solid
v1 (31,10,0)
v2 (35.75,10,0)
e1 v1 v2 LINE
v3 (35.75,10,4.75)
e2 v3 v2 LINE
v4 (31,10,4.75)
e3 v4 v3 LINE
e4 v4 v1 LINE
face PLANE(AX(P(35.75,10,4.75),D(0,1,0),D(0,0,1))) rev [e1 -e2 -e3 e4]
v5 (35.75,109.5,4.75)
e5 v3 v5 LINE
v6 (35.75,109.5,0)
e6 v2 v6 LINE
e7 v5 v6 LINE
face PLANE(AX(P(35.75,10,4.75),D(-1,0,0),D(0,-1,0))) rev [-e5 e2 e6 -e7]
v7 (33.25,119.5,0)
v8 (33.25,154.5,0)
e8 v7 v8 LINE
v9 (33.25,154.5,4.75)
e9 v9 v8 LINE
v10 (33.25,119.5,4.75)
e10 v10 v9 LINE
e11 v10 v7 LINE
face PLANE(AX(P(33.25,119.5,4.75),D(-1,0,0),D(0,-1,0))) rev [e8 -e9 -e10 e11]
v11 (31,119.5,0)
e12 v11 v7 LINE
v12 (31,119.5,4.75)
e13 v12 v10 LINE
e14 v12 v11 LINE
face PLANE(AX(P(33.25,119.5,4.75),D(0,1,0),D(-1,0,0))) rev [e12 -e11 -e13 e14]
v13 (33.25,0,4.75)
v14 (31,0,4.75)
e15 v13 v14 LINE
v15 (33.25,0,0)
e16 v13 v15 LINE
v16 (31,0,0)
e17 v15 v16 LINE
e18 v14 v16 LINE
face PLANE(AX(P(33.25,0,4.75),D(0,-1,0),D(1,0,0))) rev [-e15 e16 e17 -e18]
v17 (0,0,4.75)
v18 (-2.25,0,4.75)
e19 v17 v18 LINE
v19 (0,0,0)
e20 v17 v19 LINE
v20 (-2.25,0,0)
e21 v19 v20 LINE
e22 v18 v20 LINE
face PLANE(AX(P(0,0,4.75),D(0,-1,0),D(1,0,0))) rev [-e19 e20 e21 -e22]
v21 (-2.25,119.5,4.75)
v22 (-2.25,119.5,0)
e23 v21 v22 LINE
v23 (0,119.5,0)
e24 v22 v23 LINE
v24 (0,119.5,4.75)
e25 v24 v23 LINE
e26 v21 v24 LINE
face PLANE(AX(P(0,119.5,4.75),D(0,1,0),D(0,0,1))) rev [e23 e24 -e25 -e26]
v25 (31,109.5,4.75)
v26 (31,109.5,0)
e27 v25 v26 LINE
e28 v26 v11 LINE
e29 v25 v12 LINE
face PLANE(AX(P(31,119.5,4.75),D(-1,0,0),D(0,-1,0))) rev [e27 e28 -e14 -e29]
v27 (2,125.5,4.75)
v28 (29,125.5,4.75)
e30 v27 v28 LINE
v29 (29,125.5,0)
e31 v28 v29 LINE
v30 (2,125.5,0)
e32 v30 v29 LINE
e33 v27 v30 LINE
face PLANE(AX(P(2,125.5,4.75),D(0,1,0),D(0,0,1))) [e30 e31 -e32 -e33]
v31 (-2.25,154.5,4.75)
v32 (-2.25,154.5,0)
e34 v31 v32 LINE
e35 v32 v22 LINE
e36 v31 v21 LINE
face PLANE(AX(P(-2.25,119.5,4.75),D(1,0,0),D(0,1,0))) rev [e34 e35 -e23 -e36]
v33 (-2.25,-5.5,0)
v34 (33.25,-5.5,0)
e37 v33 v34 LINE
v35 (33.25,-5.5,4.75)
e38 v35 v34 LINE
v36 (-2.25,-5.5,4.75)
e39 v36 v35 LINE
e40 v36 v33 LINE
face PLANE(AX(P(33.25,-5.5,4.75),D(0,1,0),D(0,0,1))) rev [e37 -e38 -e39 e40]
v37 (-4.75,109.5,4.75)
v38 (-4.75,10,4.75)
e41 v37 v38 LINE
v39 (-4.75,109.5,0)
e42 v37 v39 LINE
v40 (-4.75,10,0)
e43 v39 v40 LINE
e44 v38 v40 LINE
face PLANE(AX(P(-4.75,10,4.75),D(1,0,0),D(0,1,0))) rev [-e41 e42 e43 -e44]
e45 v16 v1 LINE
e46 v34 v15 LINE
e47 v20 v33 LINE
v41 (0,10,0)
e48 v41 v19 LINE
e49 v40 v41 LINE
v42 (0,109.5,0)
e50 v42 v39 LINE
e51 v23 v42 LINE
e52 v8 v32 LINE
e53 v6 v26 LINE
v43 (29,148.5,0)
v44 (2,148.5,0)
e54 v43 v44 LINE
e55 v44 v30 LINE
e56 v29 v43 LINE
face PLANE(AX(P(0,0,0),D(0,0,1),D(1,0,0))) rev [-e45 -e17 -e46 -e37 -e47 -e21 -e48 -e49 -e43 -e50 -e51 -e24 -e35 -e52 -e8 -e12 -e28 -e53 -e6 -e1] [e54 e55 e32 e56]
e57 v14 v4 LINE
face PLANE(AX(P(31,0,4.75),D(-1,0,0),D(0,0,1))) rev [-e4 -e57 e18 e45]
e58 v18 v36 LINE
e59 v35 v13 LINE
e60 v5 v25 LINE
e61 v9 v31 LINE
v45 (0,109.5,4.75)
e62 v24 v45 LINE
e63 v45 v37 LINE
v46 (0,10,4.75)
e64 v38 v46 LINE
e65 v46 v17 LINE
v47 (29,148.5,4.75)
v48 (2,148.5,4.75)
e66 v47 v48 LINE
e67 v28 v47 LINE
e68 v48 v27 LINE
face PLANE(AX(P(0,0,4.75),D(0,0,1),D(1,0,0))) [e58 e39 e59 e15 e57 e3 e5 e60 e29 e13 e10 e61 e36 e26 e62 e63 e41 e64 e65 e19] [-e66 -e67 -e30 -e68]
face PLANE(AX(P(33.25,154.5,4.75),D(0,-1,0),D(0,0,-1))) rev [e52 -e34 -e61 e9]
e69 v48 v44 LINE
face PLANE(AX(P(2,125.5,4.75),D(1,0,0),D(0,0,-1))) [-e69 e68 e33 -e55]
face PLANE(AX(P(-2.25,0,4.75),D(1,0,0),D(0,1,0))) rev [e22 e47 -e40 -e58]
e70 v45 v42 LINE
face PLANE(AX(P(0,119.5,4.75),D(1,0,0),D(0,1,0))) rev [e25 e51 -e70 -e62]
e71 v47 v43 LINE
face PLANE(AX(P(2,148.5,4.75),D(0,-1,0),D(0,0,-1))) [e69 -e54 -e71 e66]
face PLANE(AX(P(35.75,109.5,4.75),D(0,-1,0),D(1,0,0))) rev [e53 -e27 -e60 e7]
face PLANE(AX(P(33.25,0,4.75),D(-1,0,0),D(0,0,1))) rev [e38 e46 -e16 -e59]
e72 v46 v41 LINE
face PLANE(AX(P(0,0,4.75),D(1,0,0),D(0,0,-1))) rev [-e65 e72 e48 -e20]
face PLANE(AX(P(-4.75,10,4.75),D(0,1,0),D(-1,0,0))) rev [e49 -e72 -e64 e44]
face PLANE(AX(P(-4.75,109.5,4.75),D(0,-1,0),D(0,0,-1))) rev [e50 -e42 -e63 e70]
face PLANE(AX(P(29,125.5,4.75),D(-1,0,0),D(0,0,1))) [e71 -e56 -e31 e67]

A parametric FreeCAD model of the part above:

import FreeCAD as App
import Part
import Sketcher

V = App.Vector
Q = App.Units.Quantity


def add_polygon(sketch, points):
    """Adds a closed chain of lines whose ends are joined by coincident constraints."""
    first, n = sketch.GeometryCount, len(points)
    for a, b in zip(points, points[1:] + points[:1]):
        sketch.addGeometry(Part.LineSegment(App.Vector(*a, 0), App.Vector(*b, 0)), False)
    for i in range(n):
        sketch.addConstraint(Sketcher.Constraint("Coincident", first + i, 2, first + (i + 1) % n, 1))

doc = App.newDocument("Part")
body = doc.addObject("PartDesign::Body", "Body")

sketch1 = doc.addObject("Sketcher::SketchObject", "Sketch")
body.addObject(sketch1)
sketch1.AttachmentSupport = (doc.XY_Plane, [""])
sketch1.MapMode = "FlatFace"
add_polygon(sketch1, [(-4.75, 109.5), (-4.75, 10), (0, 10), (0, 0), (-2.25, 0), (-2.25, -5.5), (33.25, -5.5), (33.25, 0), (31, 0), (31, 10), (35.75, 10), (35.75, 109.5), (31, 109.5), (31, 119.5), (33.25, 119.5), (33.25, 154.5), (-2.25, 154.5), (-2.25, 119.5), (0, 119.5), (0, 109.5)])
add_polygon(sketch1, [(2, 125.5), (2, 148.5), (29, 148.5), (29, 125.5)])
sketch1.addConstraint(Sketcher.Constraint("Vertical", 0))
sketch1.addConstraint(Sketcher.Constraint("Horizontal", 1))
sketch1.addConstraint(Sketcher.Constraint("Vertical", 2))
sketch1.addConstraint(Sketcher.Constraint("Horizontal", 3))
sketch1.addConstraint(Sketcher.Constraint("Vertical", 4))
sketch1.addConstraint(Sketcher.Constraint("Horizontal", 5))
sketch1.addConstraint(Sketcher.Constraint("Vertical", 6))
sketch1.addConstraint(Sketcher.Constraint("Horizontal", 7))
sketch1.addConstraint(Sketcher.Constraint("Vertical", 8))
sketch1.addConstraint(Sketcher.Constraint("Horizontal", 9))
sketch1.addConstraint(Sketcher.Constraint("Vertical", 10))
sketch1.addConstraint(Sketcher.Constraint("Horizontal", 11))
sketch1.addConstraint(Sketcher.Constraint("Vertical", 12))
sketch1.addConstraint(Sketcher.Constraint("Horizontal", 13))
sketch1.addConstraint(Sketcher.Constraint("Vertical", 14))
sketch1.addConstraint(Sketcher.Constraint("Horizontal", 15))
sketch1.addConstraint(Sketcher.Constraint("Vertical", 16))
sketch1.addConstraint(Sketcher.Constraint("Horizontal", 17))
sketch1.addConstraint(Sketcher.Constraint("Vertical", 18))
sketch1.addConstraint(Sketcher.Constraint("Horizontal", 19))
sketch1.addConstraint(Sketcher.Constraint("Vertical", 20))
sketch1.addConstraint(Sketcher.Constraint("Horizontal", 21))
sketch1.addConstraint(Sketcher.Constraint("Vertical", 22))
sketch1.addConstraint(Sketcher.Constraint("Horizontal", 23))
sketch1.addConstraint(Sketcher.Constraint("Coincident", 2, 2, -1, 1))
sketch1.addConstraint(Sketcher.Constraint("PointOnObject", 6, 2, -1))
sketch1.addConstraint(Sketcher.Constraint("PointOnObject", 17, 2, -2))
sketch1.addConstraint(Sketcher.Constraint("Horizontal", 1, 2, 8, 2))
sketch1.addConstraint(Sketcher.Constraint("Horizontal", 13, 2, 16, 2))
sketch1.addConstraint(Sketcher.Constraint("Horizontal", 11, 2, 18, 2))
sketch1.addConstraint(Sketcher.Constraint("Vertical", 8, 2, 11, 2))
sketch1.addConstraint(Sketcher.Constraint("Vertical", 6, 2, 13, 2))
sketch1.addConstraint(Sketcher.Constraint("Vertical", 4, 2, 15, 2))
sketch1.addConstraint(Sketcher.Constraint("Equal", 3, 7))
sketch1.addConstraint(Sketcher.Constraint("Equal", 1, 9))
sketch1.addConstraint(Sketcher.Constraint("Equal", 8, 12))
sketch1.addConstraint(Sketcher.Constraint("DistanceX", 21, 1, 21, 2, Q("27 mm")))
sketch1.addConstraint(Sketcher.Constraint("DistanceY", 2, 2, 2, 1, Q("10 mm")))
sketch1.addConstraint(Sketcher.Constraint("DistanceY", 14, 1, 14, 2, Q("35 mm")))
sketch1.addConstraint(Sketcher.Constraint("DistanceY", 20, 1, 20, 2, Q("23 mm")))
sketch1.addConstraint(Sketcher.Constraint("DistanceX", 5, 1, 5, 2, Q("35.5 mm")))
sketch1.addConstraint(Sketcher.Constraint("DistanceY", 0, 2, 0, 1, Q("99.5 mm")))
sketch1.addConstraint(Sketcher.Constraint("DistanceY", 4, 2, 4, 1, Q("5.5 mm")))
sketch1.addConstraint(Sketcher.Constraint("DistanceX", -1, 1, 7, 2, Q("31 mm")))
sketch1.addConstraint(Sketcher.Constraint("DistanceX", -1, 1, 20, 2, Q("2 mm")))
sketch1.addConstraint(Sketcher.Constraint("DistanceX", 0, 2, 5, 2, Q("38 mm")))
sketch1.addConstraint(Sketcher.Constraint("DistanceY", 20, 2, 15, 2, Q("6 mm")))
pad1 = doc.addObject("PartDesign::Pad", "Pad")
body.addObject(pad1)
pad1.Profile = sketch1
pad1.Length = 4.75

doc.recompute()
